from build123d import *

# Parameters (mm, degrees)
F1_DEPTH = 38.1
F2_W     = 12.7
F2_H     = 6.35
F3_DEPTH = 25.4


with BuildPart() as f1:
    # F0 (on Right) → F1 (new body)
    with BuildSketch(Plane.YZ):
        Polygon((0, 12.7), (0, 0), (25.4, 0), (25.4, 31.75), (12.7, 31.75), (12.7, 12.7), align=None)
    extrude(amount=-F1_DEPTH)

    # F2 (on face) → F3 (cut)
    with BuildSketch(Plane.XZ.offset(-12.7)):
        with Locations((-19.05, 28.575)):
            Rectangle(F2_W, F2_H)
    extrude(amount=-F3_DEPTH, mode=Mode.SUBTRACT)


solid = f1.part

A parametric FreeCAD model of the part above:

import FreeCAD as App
import Part
import Sketcher
Q = App.Units.Quantity


def add_polygon(sketch, points):
    """Adds a closed chain of lines whose ends are joined by coincident constraints."""
    first, n = sketch.GeometryCount, len(points)
    for a, b in zip(points, points[1:] + points[:1]):
        sketch.addGeometry(Part.LineSegment(App.Vector(*a, 0), App.Vector(*b, 0)), False)
    for i in range(n):
        sketch.addConstraint(Sketcher.Constraint("Coincident", first + i, 2, first + (i + 1) % n, 1))

doc = App.newDocument("Part")
params = doc.addObject("Spreadsheet::Sheet", "Params")
for row, (alias, value) in enumerate([
    ("sketch1_width", "1 in"),
    ("sketch1_height", "1.25 in"),
    ("pad1_length", "1.5 in"),
    ("sketch2_width", "0.5 in"),
    ("sketch2_height", "0.25 in"),
    ("pocket1_length", "1 in"),
], start=1):
    params.set(f"A{row}", alias)
    params.set(f"B{row}", "=" + value)
    params.setAlias(f"B{row}", alias)

body = doc.addObject("PartDesign::Body", "Body")

# Sketch on YZ plane
sketch1 = body.newObject("Sketcher::SketchObject", "Sketch")
sketch1.AttachmentSupport = (doc.getObject("YZ_Plane"), [""])
sketch1.MapMode = "FlatFace"
add_polygon(sketch1, [(0, 12.7), (0, 0), (25.4, 0), (25.4, 31.75), (12.7, 31.75), (12.7, 12.7)])  # lines 0-5
sketch1.addConstraint([
    Sketcher.Constraint("Vertical", 0),
    Sketcher.Constraint("Horizontal", 1),
    Sketcher.Constraint("Vertical", 2),
    Sketcher.Constraint("Horizontal", 3),
    Sketcher.Constraint("Vertical", 4),
    Sketcher.Constraint("Horizontal", 5),
    Sketcher.Constraint("Coincident", 0, 2, -1, 1),
    Sketcher.Constraint("Equal", 3, 5),
    Sketcher.Constraint("Equal", 5, 0),
    Sketcher.Constraint("DistanceX", 1, 1, 1, 2, Q("1 in")),
    Sketcher.Constraint("DistanceY", 2, 1, 2, 2, Q("1.25 in")),
])
sketch1.setExpression("Constraints[15]", "Params.sketch1_width")
sketch1.setExpression("Constraints[16]", "Params.sketch1_height")
pad1 = body.newObject("PartDesign::Pad", "Pad")
pad1.Profile = sketch1
pad1.setExpression("Length", "Params.pad1_length")
pad1.Reversed = True

# Sketch on XZ plane
sketch2 = body.newObject("Sketcher::SketchObject", "Sketch001")
sketch2.AttachmentSupport = (doc.getObject("XZ_Plane"), [""])
sketch2.MapMode = "FlatFace"
sketch2.AttachmentOffset = App.Placement(App.Vector(0, 0, -0.5 * 25.4), App.Rotation())
add_polygon(sketch2, [(-25.4, 31.75), (-25.4, 25.4), (-12.7, 25.4), (-12.7, 31.75)])  # lines 0-3
sketch2.addConstraint([
    Sketcher.Constraint("Vertical", 0),
    Sketcher.Constraint("Horizontal", 1),
    Sketcher.Constraint("Vertical", 2),
    Sketcher.Constraint("Horizontal", 3),
    Sketcher.Constraint("DistanceX", 1, 1, 1, 2, Q("0.5 in")),
    Sketcher.Constraint("DistanceX", 0, 2, -1, 1, Q("1 in")),
    Sketcher.Constraint("DistanceY", -1, 1, 0, 2, Q("1 in")),
    Sketcher.Constraint("DistanceY", 0, 2, 0, 1, Q("0.25 in")),
])
sketch2.setExpression("Constraints[8]", "Params.sketch2_width")
sketch2.setExpression("Constraints[11]", "Params.sketch2_height")
pocket1 = body.newObject("PartDesign::Pocket", "Pocket")
pocket1.Profile = sketch2
pocket1.setExpression("Length", "Params.pocket1_length")

doc.recompute()
